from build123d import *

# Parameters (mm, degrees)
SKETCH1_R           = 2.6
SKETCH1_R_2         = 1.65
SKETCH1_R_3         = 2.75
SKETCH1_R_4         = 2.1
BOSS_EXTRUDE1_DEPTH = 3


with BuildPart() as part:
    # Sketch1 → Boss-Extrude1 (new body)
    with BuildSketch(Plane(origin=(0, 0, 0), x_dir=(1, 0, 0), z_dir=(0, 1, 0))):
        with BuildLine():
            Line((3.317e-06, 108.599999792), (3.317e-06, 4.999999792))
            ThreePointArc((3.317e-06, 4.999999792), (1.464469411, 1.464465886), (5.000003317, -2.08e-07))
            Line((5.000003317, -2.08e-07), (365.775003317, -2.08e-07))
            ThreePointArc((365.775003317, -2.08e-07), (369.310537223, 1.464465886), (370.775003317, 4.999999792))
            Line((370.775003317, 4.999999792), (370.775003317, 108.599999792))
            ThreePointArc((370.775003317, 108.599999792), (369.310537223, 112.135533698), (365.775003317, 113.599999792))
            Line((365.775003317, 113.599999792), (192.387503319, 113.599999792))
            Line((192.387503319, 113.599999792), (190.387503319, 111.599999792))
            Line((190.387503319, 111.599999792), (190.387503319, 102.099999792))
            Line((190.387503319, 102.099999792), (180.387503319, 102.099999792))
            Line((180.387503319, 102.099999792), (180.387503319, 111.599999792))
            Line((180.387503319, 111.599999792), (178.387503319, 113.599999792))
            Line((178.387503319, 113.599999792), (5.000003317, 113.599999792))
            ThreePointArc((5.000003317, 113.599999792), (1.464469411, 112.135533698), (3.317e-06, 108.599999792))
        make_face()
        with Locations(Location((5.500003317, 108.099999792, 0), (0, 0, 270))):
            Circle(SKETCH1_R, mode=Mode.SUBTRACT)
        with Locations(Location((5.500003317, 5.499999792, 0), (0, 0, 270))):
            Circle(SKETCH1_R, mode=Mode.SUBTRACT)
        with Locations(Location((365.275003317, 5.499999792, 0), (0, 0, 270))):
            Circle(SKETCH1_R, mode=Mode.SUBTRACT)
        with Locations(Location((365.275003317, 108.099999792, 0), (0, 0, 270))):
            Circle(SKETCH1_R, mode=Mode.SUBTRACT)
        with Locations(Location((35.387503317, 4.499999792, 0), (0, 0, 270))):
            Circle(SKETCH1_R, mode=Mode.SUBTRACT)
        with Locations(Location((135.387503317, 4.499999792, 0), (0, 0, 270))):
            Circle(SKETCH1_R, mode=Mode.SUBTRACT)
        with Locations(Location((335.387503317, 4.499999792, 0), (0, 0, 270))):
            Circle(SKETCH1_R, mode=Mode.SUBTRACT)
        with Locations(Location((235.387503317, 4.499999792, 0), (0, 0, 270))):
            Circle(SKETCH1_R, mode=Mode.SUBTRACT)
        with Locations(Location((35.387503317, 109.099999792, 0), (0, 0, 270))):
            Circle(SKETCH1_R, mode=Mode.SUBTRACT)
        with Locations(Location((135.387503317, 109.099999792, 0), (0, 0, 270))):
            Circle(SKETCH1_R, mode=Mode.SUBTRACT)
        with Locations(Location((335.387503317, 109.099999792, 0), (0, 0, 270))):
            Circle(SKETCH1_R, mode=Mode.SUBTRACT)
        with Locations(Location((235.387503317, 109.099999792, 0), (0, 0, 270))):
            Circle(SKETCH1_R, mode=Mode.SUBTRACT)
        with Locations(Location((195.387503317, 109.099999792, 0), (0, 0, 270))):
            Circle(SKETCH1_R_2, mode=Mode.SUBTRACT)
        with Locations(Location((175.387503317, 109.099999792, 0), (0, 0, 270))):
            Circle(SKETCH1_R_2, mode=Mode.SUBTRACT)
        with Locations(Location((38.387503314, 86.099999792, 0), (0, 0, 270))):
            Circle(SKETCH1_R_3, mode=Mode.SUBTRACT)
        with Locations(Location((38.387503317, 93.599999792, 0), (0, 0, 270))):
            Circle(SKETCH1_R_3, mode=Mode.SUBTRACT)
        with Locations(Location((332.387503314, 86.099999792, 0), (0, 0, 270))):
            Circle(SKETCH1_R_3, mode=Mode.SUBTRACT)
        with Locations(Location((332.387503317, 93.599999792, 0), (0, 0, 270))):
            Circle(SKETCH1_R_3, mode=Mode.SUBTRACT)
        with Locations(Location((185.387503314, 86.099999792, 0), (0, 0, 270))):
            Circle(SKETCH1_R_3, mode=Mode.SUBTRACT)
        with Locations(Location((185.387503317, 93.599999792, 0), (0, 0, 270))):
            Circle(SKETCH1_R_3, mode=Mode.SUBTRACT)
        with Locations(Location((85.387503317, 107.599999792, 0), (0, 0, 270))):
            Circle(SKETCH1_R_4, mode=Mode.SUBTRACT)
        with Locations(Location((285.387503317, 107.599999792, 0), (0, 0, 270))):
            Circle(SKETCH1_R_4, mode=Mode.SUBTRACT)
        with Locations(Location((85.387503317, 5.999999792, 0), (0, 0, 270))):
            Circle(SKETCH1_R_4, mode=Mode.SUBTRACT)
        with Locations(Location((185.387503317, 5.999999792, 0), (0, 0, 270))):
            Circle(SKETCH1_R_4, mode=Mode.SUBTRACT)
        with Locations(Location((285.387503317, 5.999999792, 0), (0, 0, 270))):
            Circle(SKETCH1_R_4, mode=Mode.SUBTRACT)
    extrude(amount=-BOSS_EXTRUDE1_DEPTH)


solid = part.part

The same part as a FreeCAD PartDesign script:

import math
import FreeCAD as App
import Part
import Sketcher
Q = App.Units.Quantity

doc = App.newDocument("Part")
params = doc.addObject("Spreadsheet::Sheet", "Params")
for row, (alias, value) in enumerate([
    ("sketch1_radius", "5 mm"),
    ("sketch1_diameter", "5.2 mm"),
    ("sketch1_diameter2", "4.2 mm"),
    ("sketch1_diameter3", "5.5 mm"),
    ("sketch1_diameter4", "3.3 mm"),
    ("pad1_length", "3 mm"),
], start=1):
    params.set(f"A{row}", alias)
    params.set(f"B{row}", "=" + value)
    params.setAlias(f"B{row}", alias)

body = doc.addObject("PartDesign::Body", "Body")

# Sketch on XZ plane
sketch1 = body.newObject("Sketcher::SketchObject", "Sketch")
sketch1.AttachmentSupport = (doc.getObject("XZ_Plane"), [""])
sketch1.MapMode = "FlatFace"
sketch1.addGeometry(Part.LineSegment(App.Vector(0, -108.6, 0), App.Vector(0, -5, 0)), False)
sketch1.addGeometry(Part.ArcOfCircle(Part.Circle(App.Vector(5, -5, 0), App.Vector(0, 0, 1), 5), math.radians(90), math.radians(180)), False)
sketch1.addGeometry(Part.LineSegment(App.Vector(5, 0, 0), App.Vector(365.8, 0, 0)), False)
sketch1.addGeometry(Part.ArcOfCircle(Part.Circle(App.Vector(365.8, -5, 0), App.Vector(0, 0, 1), 5), math.radians(0), math.radians(90)), False)
sketch1.addGeometry(Part.LineSegment(App.Vector(370.8, -5, 0), App.Vector(370.8, -108.6, 0)), False)
sketch1.addGeometry(Part.ArcOfCircle(Part.Circle(App.Vector(365.8, -108.6, 0), App.Vector(0, 0, 1), 5), math.radians(-90), math.radians(0)), False)
sketch1.addGeometry(Part.LineSegment(App.Vector(365.8, -113.6, 0), App.Vector(192.4, -113.6, 0)), False)
sketch1.addGeometry(Part.LineSegment(App.Vector(192.4, -113.6, 0), App.Vector(190.4, -111.6, 0)), False)
sketch1.addGeometry(Part.LineSegment(App.Vector(190.4, -111.6, 0), App.Vector(190.4, -102.1, 0)), False)
sketch1.addGeometry(Part.LineSegment(App.Vector(190.4, -102.1, 0), App.Vector(180.4, -102.1, 0)), False)
sketch1.addGeometry(Part.LineSegment(App.Vector(180.4, -102.1, 0), App.Vector(180.4, -111.6, 0)), False)
sketch1.addGeometry(Part.LineSegment(App.Vector(180.4, -111.6, 0), App.Vector(178.4, -113.6, 0)), False)
sketch1.addGeometry(Part.LineSegment(App.Vector(178.4, -113.6, 0), App.Vector(5, -113.6, 0)), False)
sketch1.addGeometry(Part.ArcOfCircle(Part.Circle(App.Vector(5, -108.6, 0), App.Vector(0, 0, 1), 5), math.radians(180), math.radians(270)), False)
sketch1.addGeometry(Part.Circle(App.Vector(5.5, -5.5, 0), App.Vector(0, 0, 1), 2.6), False)
sketch1.addGeometry(Part.Circle(App.Vector(35.4, -4.5, 0), App.Vector(0, 0, 1), 2.6), False)
sketch1.addGeometry(Part.Circle(App.Vector(85.4, -6, 0), App.Vector(0, 0, 1), 2.1), False)
sketch1.addGeometry(Part.Circle(App.Vector(135.4, -4.5, 0), App.Vector(0, 0, 1), 2.6), False)
sketch1.addGeometry(Part.Circle(App.Vector(185.4, -6, 0), App.Vector(0, 0, 1), 2.1), False)
sketch1.addGeometry(Part.Circle(App.Vector(235.4, -4.5, 0), App.Vector(0, 0, 1), 2.6), False)
sketch1.addGeometry(Part.Circle(App.Vector(285.4, -6, 0), App.Vector(0, 0, 1), 2.1), False)
sketch1.addGeometry(Part.Circle(App.Vector(335.4, -4.5, 0), App.Vector(0, 0, 1), 2.6), False)
sketch1.addGeometry(Part.Circle(App.Vector(365.3, -5.5, 0), App.Vector(0, 0, 1), 2.6), False)
sketch1.addGeometry(Part.Circle(App.Vector(38.4, -86.1, 0), App.Vector(0, 0, 1), 2.8), False)
sketch1.addGeometry(Part.Circle(App.Vector(38.4, -93.6, 0), App.Vector(0, 0, 1), 2.8), False)
sketch1.addGeometry(Part.Circle(App.Vector(5.5, -108.1, 0), App.Vector(0, 0, 1), 2.6), False)
sketch1.addGeometry(Part.Circle(App.Vector(35.4, -109.1, 0), App.Vector(0, 0, 1), 2.6), False)
sketch1.addGeometry(Part.Circle(App.Vector(85.4, -107.6, 0), App.Vector(0, 0, 1), 2.1), False)
sketch1.addGeometry(Part.Circle(App.Vector(185.4, -86.1, 0), App.Vector(0, 0, 1), 2.8), False)
sketch1.addGeometry(Part.Circle(App.Vector(135.4, -109.1, 0), App.Vector(0, 0, 1), 2.6), False)
sketch1.addGeometry(Part.Circle(App.Vector(175.4, -109.1, 0), App.Vector(0, 0, 1), 1.6), False)
sketch1.addGeometry(Part.Circle(App.Vector(185.4, -93.6, 0), App.Vector(0, 0, 1), 2.8), False)
sketch1.addGeometry(Part.Circle(App.Vector(195.4, -109.1, 0), App.Vector(0, 0, 1), 1.6), False)
sketch1.addGeometry(Part.Circle(App.Vector(235.4, -109.1, 0), App.Vector(0, 0, 1), 2.6), False)
sketch1.addGeometry(Part.Circle(App.Vector(332.4, -86.1, 0), App.Vector(0, 0, 1), 2.8), False)
sketch1.addGeometry(Part.Circle(App.Vector(332.4, -93.6, 0), App.Vector(0, 0, 1), 2.8), False)
sketch1.addGeometry(Part.Circle(App.Vector(285.4, -107.6, 0), App.Vector(0, 0, 1), 2.1), False)
sketch1.addGeometry(Part.Circle(App.Vector(335.4, -109.1, 0), App.Vector(0, 0, 1), 2.6), False)
sketch1.addGeometry(Part.Circle(App.Vector(365.3, -108.1, 0), App.Vector(0, 0, 1), 2.6), False)
sketch1.addConstraint(Sketcher.Constraint("Tangent", 0, 2, 1, 2))
sketch1.addConstraint(Sketcher.Constraint("Tangent", 1, 1, 2, 1))
sketch1.addConstraint(Sketcher.Constraint("Tangent", 2, 2, 3, 2))
sketch1.addConstraint(Sketcher.Constraint("Tangent", 3, 1, 4, 1))
sketch1.addConstraint(Sketcher.Constraint("Tangent", 4, 2, 5, 2))
sketch1.addConstraint(Sketcher.Constraint("Tangent", 5, 1, 6, 1))
sketch1.addConstraint(Sketcher.Constraint("Coincident", 6, 2, 7, 1))
sketch1.addConstraint(Sketcher.Constraint("Coincident", 7, 2, 8, 1))
sketch1.addConstraint(Sketcher.Constraint("Coincident", 8, 2, 9, 1))
sketch1.addConstraint(Sketcher.Constraint("Coincident", 9, 2, 10, 1))
sketch1.addConstraint(Sketcher.Constraint("Coincident", 10, 2, 11, 1))
sketch1.addConstraint(Sketcher.Constraint("Coincident", 11, 2, 12, 1))
sketch1.addConstraint(Sketcher.Constraint("Tangent", 12, 2, 13, 2))
sketch1.addConstraint(Sketcher.Constraint("Tangent", 13, 1, 0, 1))
sketch1.addConstraint(Sketcher.Constraint("Vertical", 0))
sketch1.addConstraint(Sketcher.Constraint("Horizontal", 2))
sketch1.addConstraint(Sketcher.Constraint("Vertical", 4))
sketch1.addConstraint(Sketcher.Constraint("Horizontal", 6))
sketch1.addConstraint(Sketcher.Constraint("Vertical", 8))
sketch1.addConstraint(Sketcher.Constraint("Horizontal", 9))
sketch1.addConstraint(Sketcher.Constraint("Vertical", 10))
sketch1.addConstraint(Sketcher.Constraint("Horizontal", 12))
sketch1.addConstraint(Sketcher.Constraint("Equal", 1, 3))
sketch1.addConstraint(Sketcher.Constraint("Equal", 3, 5))
sketch1.addConstraint(Sketcher.Constraint("Equal", 5, 13))
sketch1.addConstraint(Sketcher.Constraint("Equal", 14, 15))
sketch1.addConstraint(Sketcher.Constraint("Equal", 15, 17))
sketch1.addConstraint(Sketcher.Constraint("Equal", 16, 18))
sketch1.addConstraint(Sketcher.Constraint("Equal", 17, 19))
sketch1.addConstraint(Sketcher.Constraint("Equal", 18, 20))
sketch1.addConstraint(Sketcher.Constraint("Equal", 19, 21))
sketch1.addConstraint(Sketcher.Constraint("Equal", 21, 22))
sketch1.addConstraint(Sketcher.Constraint("Equal", 23, 24))
sketch1.addConstraint(Sketcher.Constraint("Equal", 22, 25))
sketch1.addConstraint(Sketcher.Constraint("Equal", 25, 26))
sketch1.addConstraint(Sketcher.Constraint("Equal", 20, 27))
sketch1.addConstraint(Sketcher.Constraint("Equal", 24, 28))
sketch1.addConstraint(Sketcher.Constraint("Equal", 26, 29))
sketch1.addConstraint(Sketcher.Constraint("Equal", 28, 31))
sketch1.addConstraint(Sketcher.Constraint("Equal", 30, 32))
sketch1.addConstraint(Sketcher.Constraint("Equal", 29, 33))
sketch1.addConstraint(Sketcher.Constraint("Equal", 31, 34))
sketch1.addConstraint(Sketcher.Constraint("Equal", 34, 35))
sketch1.addConstraint(Sketcher.Constraint("Equal", 27, 36))
sketch1.addConstraint(Sketcher.Constraint("Equal", 33, 37))
sketch1.addConstraint(Sketcher.Constraint("Equal", 37, 38))
sketch1.addConstraint(Sketcher.Constraint("PointOnObject", 1, 1, -1))
sketch1.addConstraint(Sketcher.Constraint("Perpendicular", 7, 11))
sketch1.addConstraint(Sketcher.Constraint("Horizontal", 5, 3, 13, 3))
sketch1.addConstraint(Sketcher.Constraint("Horizontal", 15, 3, 17, 3))
sketch1.addConstraint(Sketcher.Constraint("Horizontal", 16, 3, 18, 3))
sketch1.addConstraint(Sketcher.Constraint("Horizontal", 17, 3, 19, 3))
sketch1.addConstraint(Sketcher.Constraint("Horizontal", 18, 3, 20, 3))
sketch1.addConstraint(Sketcher.Constraint("Horizontal", 19, 3, 21, 3))
sketch1.addConstraint(Sketcher.Constraint("Horizontal", 14, 3, 22, 3))
sketch1.addConstraint(Sketcher.Constraint("Horizontal", 23, 3, 28, 3))
sketch1.addConstraint(Sketcher.Constraint("Horizontal", 26, 3, 29, 3))
sketch1.addConstraint(Sketcher.Constraint("Horizontal", 29, 3, 30, 3))
sketch1.addConstraint(Sketcher.Constraint("Horizontal", 24, 3, 31, 3))
sketch1.addConstraint(Sketcher.Constraint("Horizontal", 30, 3, 32, 3))
sketch1.addConstraint(Sketcher.Constraint("Horizontal", 32, 3, 33, 3))
sketch1.addConstraint(Sketcher.Constraint("Horizontal", 28, 3, 34, 3))
sketch1.addConstraint(Sketcher.Constraint("Horizontal", 31, 3, 35, 3))
sketch1.addConstraint(Sketcher.Constraint("Horizontal", 27, 3, 36, 3))
sketch1.addConstraint(Sketcher.Constraint("Horizontal", 33, 3, 37, 3))
sketch1.addConstraint(Sketcher.Constraint("Horizontal", 25, 3, 38, 3))
sketch1.addConstraint(Sketcher.Constraint("Horizontal", 7, 2, 10, 2))
sketch1.addConstraint(Sketcher.Constraint("Vertical", 23, 3, 24, 3))
sketch1.addConstraint(Sketcher.Constraint("Vertical", 14, 3, 25, 3))
sketch1.addConstraint(Sketcher.Constraint("Vertical", 15, 3, 26, 3))
sketch1.addConstraint(Sketcher.Constraint("Vertical", 16, 3, 27, 3))
sketch1.addConstraint(Sketcher.Constraint("Vertical", 18, 3, 28, 3))
sketch1.addConstraint(Sketcher.Constraint("Vertical", 17, 3, 29, 3))
sketch1.addConstraint(Sketcher.Constraint("Vertical", 28, 3, 31, 3))
sketch1.addConstraint(Sketcher.Constraint("Vertical", 19, 3, 33, 3))
sketch1.addConstraint(Sketcher.Constraint("Vertical", 34, 3, 35, 3))
sketch1.addConstraint(Sketcher.Constraint("Vertical", 20, 3, 36, 3))
sketch1.addConstraint(Sketcher.Constraint("Vertical", 21, 3, 37, 3))
sketch1.addConstraint(Sketcher.Constraint("Vertical", 22, 3, 38, 3))
sketch1.addConstraint(Sketcher.Constraint("Equal", 6, 12))
sketch1.addConstraint(Sketcher.Constraint("Equal", 7, 11))
sketch1.addConstraint(Sketcher.Constraint("Radius", 1, Q("5 mm")))
sketch1.addConstraint(Sketcher.Constraint("Diameter", 14, Q("5.2 mm")))
sketch1.addConstraint(Sketcher.Constraint("Diameter", 16, Q("4.2 mm")))
sketch1.addConstraint(Sketcher.Constraint("Diameter", 23, Q("5.5 mm")))
sketch1.addConstraint(Sketcher.Constraint("Diameter", 30, Q("3.3 mm")))
sketch1.addConstraint(Sketcher.Constraint("DistanceX", 9, 2, 9, 1, Q("10 mm")))
sketch1.addConstraint(Sketcher.Constraint("DistanceY", 0, 1, 0, 2, Q("103.6 mm")))
sketch1.addConstraint(Sketcher.Constraint("DistanceY", 8, 1, 8, 2, Q("9.5 mm")))
sketch1.addConstraint(Sketcher.Constraint("DistanceY", 16, 3, -1, 1, Q("6 mm")))
sketch1.addConstraint(Sketcher.Constraint("DistanceY", 14, 3, 15, 3, Q("1 mm")))
sketch1.addConstraint(Sketcher.Constraint("DistanceX", 15, 3, 16, 3, Q("50 mm")))
sketch1.addConstraint(Sketcher.Constraint("DistanceX", 16, 3, 17, 3, Q("50 mm")))
sketch1.addConstraint(Sketcher.Constraint("DistanceX", 17, 3, 18, 3, Q("50 mm")))
sketch1.addConstraint(Sketcher.Constraint("DistanceX", 18, 3, 19, 3, Q("50 mm")))
sketch1.addConstraint(Sketcher.Constraint("DistanceX", 19, 3, 20, 3, Q("50 mm")))
sketch1.addConstraint(Sketcher.Constraint("DistanceX", 20, 3, 21, 3, Q("50 mm")))
sketch1.addConstraint(Sketcher.Constraint("DistanceX", 15, 3, 23, 3, Q("3 mm")))
sketch1.addConstraint(Sketcher.Constraint("DistanceY", 13, 3, 24, 3, Q("15 mm")))
sketch1.addConstraint(Sketcher.Constraint("DistanceY", 25, 3, 23, 3, Q("22 mm")))
sketch1.addConstraint(Sketcher.Constraint("DistanceY", 26, 3, 23, 3, Q("23 mm")))
sketch1.addConstraint(Sketcher.Constraint("DistanceY", 27, 3, 24, 3, Q("14 mm")))
sketch1.addConstraint(Sketcher.Constraint("DistanceX", 30, 3, 28, 3, Q("10 mm")))
sketch1.addConstraint(Sketcher.Constraint("DistanceX", 31, 3, 32, 3, Q("10 mm")))
sketch1.addConstraint(Sketcher.Constraint("DistanceX", 34, 3, 21, 3, Q("3 mm")))
sketch1.addConstraint(Sketcher.Constraint("DistanceX", 6, 2, 32, 3, Q("3 mm")))
sketch1.addConstraint(Sketcher.Constraint("DistanceX", 7, 2, 6, 2, Q("2 mm")))
sketch1.addConstraint(Sketcher.Constraint("DistanceY", 32, 3, 8, 2, Q("7 mm")))
sketch1.addConstraint(Sketcher.Constraint("DistanceY", 14, 3, -1, 1, Q("5.5 mm")))
sketch1.addConstraint(Sketcher.Constraint("DistanceX", 1, 3, 14, 3, Q("0.5 mm")))
sketch1.addConstraint(Sketcher.Constraint("DistanceX", 22, 3, 3, 3, Q("0.5 mm")))
sketch1.addConstraint(Sketcher.Constraint("DistanceX", 2, 1, 2, 2, Q("360.775 mm")))
sketch1.addConstraint(Sketcher.Constraint("DistanceX", -1, 1, 1, 3, Q("5.000003 mm")))
sketch1.setExpression("Constraints[81]", "Params.sketch1_radius")
sketch1.setExpression("Constraints[82]", "Params.sketch1_diameter")
sketch1.setExpression("Constraints[83]", "Params.sketch1_diameter2")
sketch1.setExpression("Constraints[84]", "Params.sketch1_diameter3")
sketch1.setExpression("Constraints[85]", "Params.sketch1_diameter4")
pad1 = body.newObject("PartDesign::Pad", "Pad")
pad1.Profile = sketch1
pad1.setExpression("Length", "Params.pad1_length")

doc.recompute()
